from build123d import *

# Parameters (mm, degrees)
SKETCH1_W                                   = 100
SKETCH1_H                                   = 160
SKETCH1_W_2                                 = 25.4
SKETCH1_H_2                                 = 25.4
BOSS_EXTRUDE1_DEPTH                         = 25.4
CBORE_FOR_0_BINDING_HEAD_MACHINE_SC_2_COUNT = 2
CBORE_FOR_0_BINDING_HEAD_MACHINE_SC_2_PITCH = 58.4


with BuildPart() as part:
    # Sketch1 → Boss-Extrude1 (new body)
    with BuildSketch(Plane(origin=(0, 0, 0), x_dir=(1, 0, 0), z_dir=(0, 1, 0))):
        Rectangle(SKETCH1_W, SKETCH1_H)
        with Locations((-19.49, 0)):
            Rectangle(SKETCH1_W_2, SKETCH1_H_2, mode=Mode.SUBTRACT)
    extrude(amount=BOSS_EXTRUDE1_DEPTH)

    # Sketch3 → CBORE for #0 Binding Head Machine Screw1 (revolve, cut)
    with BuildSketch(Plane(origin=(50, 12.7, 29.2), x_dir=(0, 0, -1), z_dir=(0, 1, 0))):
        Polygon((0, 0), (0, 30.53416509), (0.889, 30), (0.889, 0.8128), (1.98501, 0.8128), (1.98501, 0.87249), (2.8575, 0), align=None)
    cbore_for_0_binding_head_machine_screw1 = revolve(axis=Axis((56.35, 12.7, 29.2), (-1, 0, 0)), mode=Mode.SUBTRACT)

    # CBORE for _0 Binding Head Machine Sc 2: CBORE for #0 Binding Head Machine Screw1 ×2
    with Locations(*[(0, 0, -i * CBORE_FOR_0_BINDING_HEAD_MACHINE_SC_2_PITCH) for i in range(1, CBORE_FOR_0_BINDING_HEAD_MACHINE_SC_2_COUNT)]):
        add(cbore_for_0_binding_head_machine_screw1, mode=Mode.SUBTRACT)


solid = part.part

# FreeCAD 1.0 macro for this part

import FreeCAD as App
import Part
import Sketcher

V = App.Vector
Q = App.Units.Quantity

doc = App.newDocument("Part")
body = doc.addObject("PartDesign::Body", "Body")

sketch1 = body.newObject("Sketcher::SketchObject", "Sketch")
sketch1.AttachmentSupport = (doc.getObject("XZ_Plane"), [""])
sketch1.MapMode = "FlatFace"
sketch1.addGeometry([
    Part.LineSegment(V(-50, -80, 0), V(-50, 80, 0)),
    Part.LineSegment(V(-50, 80, 0), V(50, 80, 0)),
    Part.LineSegment(V(50, 80, 0), V(50, -80, 0)),
    Part.LineSegment(V(50, -80, 0), V(-50, -80, 0)),
    Part.LineSegment(V(-7, 13, 0), V(-32, 13, 0)),
    Part.LineSegment(V(-32, 13, 0), V(-32, -13, 0)),
    Part.LineSegment(V(-32, -13, 0), V(-7, -13, 0)),
    Part.LineSegment(V(-7, -13, 0), V(-7, 13, 0)),
], False)
sketch1.addConstraint([
    Sketcher.Constraint("Coincident", 0, 2, 1, 1),
    Sketcher.Constraint("Coincident", 1, 2, 2, 1),
    Sketcher.Constraint("Coincident", 2, 2, 3, 1),
    Sketcher.Constraint("Coincident", 3, 2, 0, 1),
    Sketcher.Constraint("Coincident", 4, 2, 5, 1),
    Sketcher.Constraint("Coincident", 5, 2, 6, 1),
    Sketcher.Constraint("Coincident", 6, 2, 7, 1),
    Sketcher.Constraint("Coincident", 7, 2, 4, 1),
    Sketcher.Constraint("Vertical", 0),
    Sketcher.Constraint("Horizontal", 1),
    Sketcher.Constraint("Vertical", 2),
    Sketcher.Constraint("Horizontal", 3),
    Sketcher.Constraint("Horizontal", 4),
    Sketcher.Constraint("Vertical", 5),
    Sketcher.Constraint("Horizontal", 6),
    Sketcher.Constraint("Vertical", 7),
    Sketcher.Constraint("Symmetric", 0, 2, 2, 2, -1, 1),
    Sketcher.Constraint("Equal", 6, 5),
    Sketcher.Constraint("DistanceX", 1, 1, 1, 2, 100.0),
    Sketcher.Constraint("DistanceY", 0, 1, 0, 2, 160.0),
    Sketcher.Constraint("DistanceX", 4, 2, 4, 1, 25.4),
    Sketcher.Constraint("DistanceY", -1, 1, 4, 2, 12.7),
    Sketcher.Constraint("DistanceX", 4, 2, -1, 1, 32.19),
])
pad1 = body.newObject("PartDesign::Pad", "Pad")
pad1.Profile = sketch1
pad1.Length = 25.4
pad1.Reversed = True

sketch2 = body.newObject("Sketcher::SketchObject", "Sketch001")
sketch2.AttachmentSupport = (doc.getObject("XZ_Plane"), [""])
sketch2.MapMode = "FlatFace"
sketch2.AttachmentOffset = App.Placement(V(0, 0, -12.7), App.Rotation())
sketch2.addGeometry([
    Part.LineSegment(V(19.47, 29.2, 0), V(50, 29.2, 0)),
    Part.LineSegment(V(50, 29.2, 0), V(50, 26.34, 0)),
    Part.LineSegment(V(50, 26.34, 0), V(49.13, 27.21, 0)),
    Part.LineSegment(V(49.13, 27.21, 0), V(49.19, 27.21, 0)),
    Part.LineSegment(V(49.19, 27.21, 0), V(49.19, 28.31, 0)),
    Part.LineSegment(V(49.19, 28.31, 0), V(20, 28.31, 0)),
    Part.LineSegment(V(20, 28.31, 0), V(19.47, 29.2, 0)),
], False)
sketch2.addGeometry(Part.LineSegment(V(50, 29.2, 0), V(19.47, 29.2, 0)), True)
sketch2.addConstraint([
    Sketcher.Constraint("Coincident", 0, 2, 1, 1),
    Sketcher.Constraint("Coincident", 1, 2, 2, 1),
    Sketcher.Constraint("Coincident", 2, 2, 3, 1),
    Sketcher.Constraint("Coincident", 3, 2, 4, 1),
    Sketcher.Constraint("Coincident", 4, 2, 5, 1),
    Sketcher.Constraint("Coincident", 5, 2, 6, 1),
    Sketcher.Constraint("Coincident", 6, 2, 0, 1),
    Sketcher.Constraint("Horizontal", 0),
    Sketcher.Constraint("Vertical", 1),
    Sketcher.Constraint("Horizontal", 3),
    Sketcher.Constraint("Vertical", 4),
    Sketcher.Constraint("Horizontal", 5),
    Sketcher.Constraint("Horizontal", 7),
    Sketcher.Constraint("Coincident", 7, 1, 0, 2),
    Sketcher.Constraint("Equal", 0, 7),
    Sketcher.Constraint("Angle", 2, Q("135 deg")),
    Sketcher.Constraint("Angle", 6, Q("121 deg")),
    Sketcher.Constraint("DistanceX", -1, 1, 0, 2, 50.0),
    Sketcher.Constraint("DistanceX", -1, 1, 5, 2, 20.0),
    Sketcher.Constraint("DistanceY", -1, 1, 0, 2, 29.2),
    Sketcher.Constraint("DistanceX", 5, 2, 5, 1, 29.1872),
    Sketcher.Constraint("DistanceY", 1, 2, 1, 1, 2.8575),
    Sketcher.Constraint("DistanceY", -1, 1, 4, 2, 28.311),
    Sketcher.Constraint("DistanceX", 3, 1, 3, 2, 0.05969),
])
groove = body.newObject("PartDesign::Groove", "Groove")
groove.Profile = sketch2
groove.ReferenceAxis = (sketch2, ["Axis0"])
groove.Angle = 360
doc.recompute()

linearpattern = body.newObject("PartDesign::LinearPattern", "LinearPattern")
linearpattern.Originals = [groove]
linearpattern.Direction = (doc.getObject("Z_Axis"), [""])
linearpattern.Mode = "offset"
linearpattern.Offset = 58.4
linearpattern.Occurrences = 2
linearpattern.Reversed = True
body.Tip = linearpattern

doc.recompute()
